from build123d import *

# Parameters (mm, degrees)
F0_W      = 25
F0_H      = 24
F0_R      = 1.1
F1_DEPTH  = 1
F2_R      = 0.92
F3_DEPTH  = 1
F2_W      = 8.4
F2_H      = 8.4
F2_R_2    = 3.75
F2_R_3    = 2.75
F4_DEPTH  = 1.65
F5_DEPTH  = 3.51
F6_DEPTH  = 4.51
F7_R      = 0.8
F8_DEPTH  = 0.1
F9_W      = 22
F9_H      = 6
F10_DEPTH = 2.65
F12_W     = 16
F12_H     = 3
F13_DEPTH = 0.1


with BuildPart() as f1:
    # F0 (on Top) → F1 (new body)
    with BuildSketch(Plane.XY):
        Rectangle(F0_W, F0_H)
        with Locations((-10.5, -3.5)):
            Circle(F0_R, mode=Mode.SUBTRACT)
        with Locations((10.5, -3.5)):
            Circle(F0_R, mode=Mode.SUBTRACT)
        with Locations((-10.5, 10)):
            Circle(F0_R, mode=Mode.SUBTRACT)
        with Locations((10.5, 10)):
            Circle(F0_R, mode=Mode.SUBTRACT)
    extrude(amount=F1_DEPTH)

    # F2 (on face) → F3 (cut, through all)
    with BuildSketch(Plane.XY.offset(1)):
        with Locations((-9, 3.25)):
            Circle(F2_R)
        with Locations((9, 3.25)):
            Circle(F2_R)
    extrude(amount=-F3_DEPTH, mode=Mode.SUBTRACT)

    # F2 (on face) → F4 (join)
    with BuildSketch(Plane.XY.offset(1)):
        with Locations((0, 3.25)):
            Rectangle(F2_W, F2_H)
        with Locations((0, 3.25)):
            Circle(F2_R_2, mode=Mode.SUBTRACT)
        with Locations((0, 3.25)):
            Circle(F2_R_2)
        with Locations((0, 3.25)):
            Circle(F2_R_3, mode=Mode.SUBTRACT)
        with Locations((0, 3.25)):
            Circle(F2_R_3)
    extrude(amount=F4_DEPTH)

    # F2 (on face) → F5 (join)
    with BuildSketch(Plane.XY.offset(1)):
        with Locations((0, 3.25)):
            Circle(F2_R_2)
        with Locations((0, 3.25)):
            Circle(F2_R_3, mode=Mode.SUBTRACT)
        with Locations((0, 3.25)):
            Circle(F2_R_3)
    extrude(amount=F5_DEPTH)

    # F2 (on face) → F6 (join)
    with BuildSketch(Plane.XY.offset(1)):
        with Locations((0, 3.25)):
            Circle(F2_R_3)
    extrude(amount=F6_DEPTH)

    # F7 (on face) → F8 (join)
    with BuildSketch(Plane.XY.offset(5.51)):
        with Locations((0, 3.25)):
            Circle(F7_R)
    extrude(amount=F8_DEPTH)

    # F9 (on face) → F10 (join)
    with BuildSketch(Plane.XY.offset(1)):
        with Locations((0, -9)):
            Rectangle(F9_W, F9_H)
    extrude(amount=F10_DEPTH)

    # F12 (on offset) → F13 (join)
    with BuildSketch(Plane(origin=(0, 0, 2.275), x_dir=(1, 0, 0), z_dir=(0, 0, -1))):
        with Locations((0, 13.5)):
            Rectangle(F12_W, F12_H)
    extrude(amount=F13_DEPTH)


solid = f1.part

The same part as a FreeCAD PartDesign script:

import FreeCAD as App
import Part
import Sketcher

V = App.Vector
Q = App.Units.Quantity


def add_polygon(sketch, points):
    """Adds a closed chain of lines whose ends are joined by coincident constraints."""
    first, n = sketch.GeometryCount, len(points)
    for a, b in zip(points, points[1:] + points[:1]):
        sketch.addGeometry(Part.LineSegment(App.Vector(*a, 0), App.Vector(*b, 0)), False)
    for i in range(n):
        sketch.addConstraint(Sketcher.Constraint("Coincident", first + i, 2, first + (i + 1) % n, 1))

doc = App.newDocument("Part")
body = doc.addObject("PartDesign::Body", "Body")

sketch1 = doc.addObject("Sketcher::SketchObject", "Sketch")
body.addObject(sketch1)
sketch1.AttachmentSupport = (doc.XY_Plane, [""])
sketch1.MapMode = "FlatFace"
add_polygon(sketch1, [(-12.5, 12), (-12.5, -12), (12.5, -12), (12.5, 12)])
sketch1.addGeometry(Part.Circle(V(-10.5, -3.5, 0), V(0, 0, 1), 1.1), False)
sketch1.addGeometry(Part.Circle(V(10.5, -3.5, 0), V(0, 0, 1), 1.1), False)
sketch1.addGeometry(Part.Circle(V(-10.5, 10, 0), V(0, 0, 1), 1.1), False)
sketch1.addGeometry(Part.Circle(V(10.5, 10, 0), V(0, 0, 1), 1.1), False)
sketch1.addConstraint(Sketcher.Constraint("Vertical", 0))
sketch1.addConstraint(Sketcher.Constraint("Horizontal", 1))
sketch1.addConstraint(Sketcher.Constraint("Vertical", 2))
sketch1.addConstraint(Sketcher.Constraint("Horizontal", 3))
sketch1.addConstraint(Sketcher.Constraint("Equal", 4, 5))
sketch1.addConstraint(Sketcher.Constraint("Equal", 5, 6))
sketch1.addConstraint(Sketcher.Constraint("Equal", 6, 7))
sketch1.addConstraint(Sketcher.Constraint("Symmetric", 0, 2, 2, 2, -1, 1))
sketch1.addConstraint(Sketcher.Constraint("Symmetric", 4, 3, 5, 3, -2))
sketch1.addConstraint(Sketcher.Constraint("Symmetric", 6, 3, 7, 3, -2))
sketch1.addConstraint(Sketcher.Constraint("Vertical", 4, 3, 6, 3))
sketch1.addConstraint(Sketcher.Constraint("Diameter", 4, Q("2.2 mm")))
sketch1.addConstraint(Sketcher.Constraint("DistanceX", 1, 1, 1, 2, Q("25 mm")))
sketch1.addConstraint(Sketcher.Constraint("DistanceY", 0, 2, 0, 1, Q("24 mm")))
sketch1.addConstraint(Sketcher.Constraint("DistanceY", -1, 1, 6, 3, Q("10 mm")))
sketch1.addConstraint(Sketcher.Constraint("DistanceX", 4, 3, 5, 3, Q("21 mm")))
sketch1.addConstraint(Sketcher.Constraint("DistanceY", 4, 3, -1, 1, Q("3.5 mm")))
pad1 = doc.addObject("PartDesign::Pad", "Pad")
body.addObject(pad1)
pad1.Profile = sketch1
pad1.Length = 1

sketch2 = doc.addObject("Sketcher::SketchObject", "Sketch001")
body.addObject(sketch2)
sketch2.AttachmentSupport = (doc.XY_Plane, [""])
sketch2.MapMode = "FlatFace"
sketch2.AttachmentOffset = App.Placement(V(0, 0, 1), App.Rotation())
sketch2.addGeometry(Part.Circle(V(-9, 3.2, 0), V(0, 0, 1), 0.9), False)
sketch2.addGeometry(Part.Circle(V(9, 3.2, 0), V(0, 0, 1), 0.9), False)
sketch2.addConstraint(Sketcher.Constraint("Equal", 0, 1))
sketch2.addConstraint(Sketcher.Constraint("Symmetric", 0, 3, 1, 3, -2))
sketch2.addConstraint(Sketcher.Constraint("Diameter", 0, Q("1.84 mm")))
sketch2.addConstraint(Sketcher.Constraint("DistanceX", 0, 3, -1, 1, Q("9 mm")))
sketch2.addConstraint(Sketcher.Constraint("DistanceY", -1, 1, 0, 3, Q("3.25 mm")))
pocket1 = doc.addObject("PartDesign::Pocket", "Pocket")
body.addObject(pocket1)
pocket1.Profile = sketch2
pocket1.Type = "ThroughAll"

sketch3 = doc.addObject("Sketcher::SketchObject", "Sketch002")
body.addObject(sketch3)
sketch3.AttachmentSupport = (doc.XY_Plane, [""])
sketch3.MapMode = "FlatFace"
sketch3.AttachmentOffset = App.Placement(V(0, 0, 1), App.Rotation())
add_polygon(sketch3, [(-4, 7), (-4, -1), (4, -1), (4, 7)])
sketch3.addConstraint(Sketcher.Constraint("Vertical", 0))
sketch3.addConstraint(Sketcher.Constraint("Horizontal", 1))
sketch3.addConstraint(Sketcher.Constraint("Vertical", 2))
sketch3.addConstraint(Sketcher.Constraint("Horizontal", 3))
sketch3.addConstraint(Sketcher.Constraint("Equal", 3, 0))
sketch3.addConstraint(Sketcher.Constraint("DistanceX", 1, 1, 1, 2, Q("8.4 mm")))
sketch3.addConstraint(Sketcher.Constraint("DistanceX", 0, 2, -1, 1, Q("4.2 mm")))
sketch3.addConstraint(Sketcher.Constraint("DistanceY", 0, 2, -1, 1, Q("0.95 mm")))
pad2 = doc.addObject("PartDesign::Pad", "Pad001")
body.addObject(pad2)
pad2.Profile = sketch3
pad2.Length = 1.65

sketch4 = doc.addObject("Sketcher::SketchObject", "Sketch003")
body.addObject(sketch4)
sketch4.AttachmentSupport = (doc.XY_Plane, [""])
sketch4.MapMode = "FlatFace"
sketch4.AttachmentOffset = App.Placement(V(0, 0, 1), App.Rotation())
sketch4.addGeometry(Part.Circle(V(0, 3.2, 0), V(0, 0, 1), 3.8), False)
sketch4.addConstraint(Sketcher.Constraint("PointOnObject", 0, 3, -2))
sketch4.addConstraint(Sketcher.Constraint("Diameter", 0, Q("7.5 mm")))
sketch4.addConstraint(Sketcher.Constraint("DistanceY", -1, 1, 0, 3, Q("3.25 mm")))
pad3 = doc.addObject("PartDesign::Pad", "Pad002")
body.addObject(pad3)
pad3.Profile = sketch4
pad3.Length = 3.51

sketch5 = doc.addObject("Sketcher::SketchObject", "Sketch004")
body.addObject(sketch5)
sketch5.AttachmentSupport = (doc.XY_Plane, [""])
sketch5.MapMode = "FlatFace"
sketch5.AttachmentOffset = App.Placement(V(0, 0, 1), App.Rotation())
sketch5.addGeometry(Part.Circle(V(0, 3.2, 0), V(0, 0, 1), 2.8), False)
sketch5.addConstraint(Sketcher.Constraint("PointOnObject", 0, 3, -2))
sketch5.addConstraint(Sketcher.Constraint("Diameter", 0, Q("5.5 mm")))
sketch5.addConstraint(Sketcher.Constraint("DistanceY", -1, 1, 0, 3, Q("3.25 mm")))
pad4 = doc.addObject("PartDesign::Pad", "Pad003")
body.addObject(pad4)
pad4.Profile = sketch5
pad4.Length = 4.51

sketch6 = doc.addObject("Sketcher::SketchObject", "Sketch005")
body.addObject(sketch6)
sketch6.AttachmentSupport = (doc.XY_Plane, [""])
sketch6.MapMode = "FlatFace"
sketch6.AttachmentOffset = App.Placement(V(0, 0, 5.51), App.Rotation())
sketch6.addGeometry(Part.Circle(V(0, 3.2, 0), V(0, 0, 1), 0.8), False)
sketch6.addConstraint(Sketcher.Constraint("PointOnObject", 0, 3, -2))
sketch6.addConstraint(Sketcher.Constraint("Diameter", 0, Q("1.6 mm")))
sketch6.addConstraint(Sketcher.Constraint("DistanceY", -1, 1, 0, 3, Q("3.25 mm")))
pad5 = doc.addObject("PartDesign::Pad", "Pad004")
body.addObject(pad5)
pad5.Profile = sketch6
pad5.Length = 0.1

sketch7 = doc.addObject("Sketcher::SketchObject", "Sketch006")
body.addObject(sketch7)
sketch7.AttachmentSupport = (doc.XY_Plane, [""])
sketch7.MapMode = "FlatFace"
sketch7.AttachmentOffset = App.Placement(V(0, 0, 1), App.Rotation())
add_polygon(sketch7, [(-11, -6), (-11, -12), (11, -12), (11, -6)])
sketch7.addConstraint(Sketcher.Constraint("Vertical", 0))
sketch7.addConstraint(Sketcher.Constraint("Horizontal", 1))
sketch7.addConstraint(Sketcher.Constraint("Vertical", 2))
sketch7.addConstraint(Sketcher.Constraint("Horizontal", 3))
sketch7.addConstraint(Sketcher.Constraint("DistanceX", 1, 1, 1, 2, Q("22 mm")))
sketch7.addConstraint(Sketcher.Constraint("DistanceY", 0, 2, 0, 1, Q("6 mm")))
sketch7.addConstraint(Sketcher.Constraint("DistanceX", 0, 2, -1, 1, Q("11 mm")))
sketch7.addConstraint(Sketcher.Constraint("DistanceY", 0, 2, -1, 1, Q("12 mm")))
pad6 = doc.addObject("PartDesign::Pad", "Pad005")
body.addObject(pad6)
pad6.Profile = sketch7
pad6.Length = 2.65

sketch8 = doc.addObject("Sketcher::SketchObject", "Sketch007")
body.addObject(sketch8)
sketch8.AttachmentSupport = (doc.XY_Plane, [""])
sketch8.MapMode = "FlatFace"
sketch8.AttachmentOffset = App.Placement(V(0, 0, 2.275), App.Rotation())
add_polygon(sketch8, [(-8, -15), (-8, -12), (8, -12), (8, -15)])
sketch8.addConstraint(Sketcher.Constraint("Vertical", 0))
sketch8.addConstraint(Sketcher.Constraint("Horizontal", 1))
sketch8.addConstraint(Sketcher.Constraint("Vertical", 2))
sketch8.addConstraint(Sketcher.Constraint("Horizontal", 3))
sketch8.addConstraint(Sketcher.Constraint("DistanceX", 1, 1, 1, 2, Q("16 mm")))
sketch8.addConstraint(Sketcher.Constraint("DistanceY", 0, 1, 0, 2, Q("3 mm")))
sketch8.addConstraint(Sketcher.Constraint("DistanceX", 0, 2, -1, 1, Q("8 mm")))
sketch8.addConstraint(Sketcher.Constraint("DistanceY", 0, 2, -1, 1, Q("12 mm")))
pad7 = doc.addObject("PartDesign::Pad", "Pad006")
body.addObject(pad7)
pad7.Profile = sketch8
pad7.Length = 0.1
pad7.Reversed = True

doc.recompute()
